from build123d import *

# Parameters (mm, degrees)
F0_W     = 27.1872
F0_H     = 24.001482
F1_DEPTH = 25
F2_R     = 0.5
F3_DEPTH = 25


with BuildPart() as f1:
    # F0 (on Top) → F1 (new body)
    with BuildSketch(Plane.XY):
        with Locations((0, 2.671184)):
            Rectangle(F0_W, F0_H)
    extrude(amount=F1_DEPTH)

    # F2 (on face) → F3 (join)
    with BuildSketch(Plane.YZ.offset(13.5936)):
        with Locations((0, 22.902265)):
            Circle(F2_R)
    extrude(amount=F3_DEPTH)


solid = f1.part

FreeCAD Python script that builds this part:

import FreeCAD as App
import Part
import Sketcher

V = App.Vector

doc = App.newDocument("Part")
body = doc.addObject("PartDesign::Body", "Body")

# Sketch on XY plane
sketch1 = doc.addObject("Sketcher::SketchObject", "Sketch")
body.addObject(sketch1)
sketch1.AttachmentSupport = (doc.XY_Plane, [""])
sketch1.MapMode = "FlatFace"
sketch1.addGeometry([
    Part.LineSegment(V(-13.5936, 14.671925, 0), V(-13.5936, -9.329557, 0)),
    Part.LineSegment(V(-13.5936, -9.329557, 0), V(13.5936, -9.329557, 0)),
    Part.LineSegment(V(13.5936, -9.329557, 0), V(13.5936, 14.671925, 0)),
    Part.LineSegment(V(13.5936, 14.671925, 0), V(-13.5936, 14.671925, 0)),
], False)
sketch1.addConstraint([
    Sketcher.Constraint("Coincident", 0, 2, 1, 1),
    Sketcher.Constraint("Coincident", 1, 2, 2, 1),
    Sketcher.Constraint("Coincident", 2, 2, 3, 1),
    Sketcher.Constraint("Coincident", 3, 2, 0, 1),
    Sketcher.Constraint("Vertical", 0),
    Sketcher.Constraint("Horizontal", 1),
    Sketcher.Constraint("Vertical", 2),
    Sketcher.Constraint("Horizontal", 3),
    Sketcher.Constraint("DistanceX", 1, 1, 1, 2, 27.1872),
    Sketcher.Constraint("DistanceY", 0, 2, 0, 1, 24.001482),
    Sketcher.Constraint("DistanceX", 0, 2, -1, 1, 13.5936),
    Sketcher.Constraint("DistanceY", 0, 2, -1, 1, 9.329557),
])
pad1 = doc.addObject("PartDesign::Pad", "Pad")
body.addObject(pad1)
pad1.Profile = sketch1
pad1.Length = 25

# Sketch on YZ plane
sketch2 = doc.addObject("Sketcher::SketchObject", "Sketch001")
body.addObject(sketch2)
sketch2.AttachmentSupport = (doc.YZ_Plane, [""])
sketch2.MapMode = "FlatFace"
sketch2.AttachmentOffset = App.Placement(V(0, 0, 13.5936), App.Rotation())
sketch2.addGeometry(Part.Circle(V(0, 22.902265, 0), V(0, 0, 1), 0.5), False)
sketch2.addConstraint([
    Sketcher.Constraint("PointOnObject", 0, 3, -2),
    Sketcher.Constraint("Diameter", 0, 1.0),
    Sketcher.Constraint("DistanceY", -1, 1, 0, 3, 22.902265),
])
pad2 = doc.addObject("PartDesign::Pad", "Pad001")
body.addObject(pad2)
pad2.Profile = sketch2
pad2.Length = 25

doc.recompute()
